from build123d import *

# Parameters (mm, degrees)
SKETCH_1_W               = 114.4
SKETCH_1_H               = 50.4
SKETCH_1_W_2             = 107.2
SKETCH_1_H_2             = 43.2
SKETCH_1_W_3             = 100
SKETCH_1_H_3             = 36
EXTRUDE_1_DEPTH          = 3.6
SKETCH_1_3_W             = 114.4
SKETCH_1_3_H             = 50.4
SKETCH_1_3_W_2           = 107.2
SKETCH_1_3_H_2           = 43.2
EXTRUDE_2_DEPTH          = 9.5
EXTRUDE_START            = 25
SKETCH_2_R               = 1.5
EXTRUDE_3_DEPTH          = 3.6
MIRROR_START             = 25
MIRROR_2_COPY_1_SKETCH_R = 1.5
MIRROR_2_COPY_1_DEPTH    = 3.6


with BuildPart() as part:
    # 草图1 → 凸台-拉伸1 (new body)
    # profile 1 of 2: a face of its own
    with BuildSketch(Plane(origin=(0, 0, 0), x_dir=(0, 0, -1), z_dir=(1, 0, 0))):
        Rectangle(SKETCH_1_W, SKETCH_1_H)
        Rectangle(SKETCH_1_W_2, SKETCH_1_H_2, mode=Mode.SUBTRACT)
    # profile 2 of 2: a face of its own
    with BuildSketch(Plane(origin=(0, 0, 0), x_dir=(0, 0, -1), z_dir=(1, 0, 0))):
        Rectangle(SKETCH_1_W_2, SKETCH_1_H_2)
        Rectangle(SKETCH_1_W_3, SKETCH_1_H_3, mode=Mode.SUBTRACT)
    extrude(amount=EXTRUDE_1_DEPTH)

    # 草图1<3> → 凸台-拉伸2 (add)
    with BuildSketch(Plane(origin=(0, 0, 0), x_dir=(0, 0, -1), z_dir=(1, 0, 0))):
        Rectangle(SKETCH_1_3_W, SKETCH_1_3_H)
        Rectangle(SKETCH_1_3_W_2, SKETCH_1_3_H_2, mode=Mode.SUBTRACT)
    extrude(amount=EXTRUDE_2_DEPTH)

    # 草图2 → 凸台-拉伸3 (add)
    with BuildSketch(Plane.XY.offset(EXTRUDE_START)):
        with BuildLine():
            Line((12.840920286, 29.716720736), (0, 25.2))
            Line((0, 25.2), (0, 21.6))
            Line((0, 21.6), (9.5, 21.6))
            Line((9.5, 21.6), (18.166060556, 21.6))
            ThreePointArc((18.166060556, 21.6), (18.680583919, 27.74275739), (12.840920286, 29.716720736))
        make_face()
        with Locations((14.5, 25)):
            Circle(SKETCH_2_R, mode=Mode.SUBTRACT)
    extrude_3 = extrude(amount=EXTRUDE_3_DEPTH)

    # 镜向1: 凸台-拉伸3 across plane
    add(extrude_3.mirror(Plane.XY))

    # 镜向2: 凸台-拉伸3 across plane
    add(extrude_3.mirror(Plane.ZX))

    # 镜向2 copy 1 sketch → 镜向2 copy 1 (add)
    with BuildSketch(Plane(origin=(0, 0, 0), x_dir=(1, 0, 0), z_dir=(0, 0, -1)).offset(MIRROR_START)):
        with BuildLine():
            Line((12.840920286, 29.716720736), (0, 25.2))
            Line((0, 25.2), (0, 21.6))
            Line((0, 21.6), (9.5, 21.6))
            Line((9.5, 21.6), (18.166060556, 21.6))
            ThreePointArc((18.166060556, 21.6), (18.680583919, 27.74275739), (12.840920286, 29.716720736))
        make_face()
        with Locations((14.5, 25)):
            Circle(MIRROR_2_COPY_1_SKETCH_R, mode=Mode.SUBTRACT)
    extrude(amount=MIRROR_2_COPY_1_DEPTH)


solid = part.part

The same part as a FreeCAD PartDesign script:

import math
import FreeCAD as App
import Part
import Sketcher

V = App.Vector

doc = App.newDocument("Part")
body = doc.addObject("PartDesign::Body", "Body")

sketch1 = body.newObject("Sketcher::SketchObject", "Sketch")
sketch1.AttachmentSupport = (doc.getObject("YZ_Plane"), [""])
sketch1.MapMode = "FlatFace"
sketch1.addGeometry(Part.LineSegment(V(25, 57, 0), V(-25, 57, 0)), False)
sketch1.addGeometry(Part.LineSegment(V(-25, 57, 0), V(-25, -57, 0)), False)
sketch1.addGeometry(Part.LineSegment(V(-25, -57, 0), V(25, -57, 0)), False)
sketch1.addGeometry(Part.LineSegment(V(25, -57, 0), V(25, 57, 0)), False)
sketch1.addGeometry(Part.LineSegment(V(-18, -50, 0), V(-18, 50, 0)), False)
sketch1.addGeometry(Part.LineSegment(V(-18, 50, 0), V(18, 50, 0)), False)
sketch1.addGeometry(Part.LineSegment(V(18, 50, 0), V(18, -50, 0)), False)
sketch1.addGeometry(Part.LineSegment(V(18, -50, 0), V(-18, -50, 0)), False)
sketch1.addConstraint(Sketcher.Constraint("Coincident", 0, 2, 1, 1))
sketch1.addConstraint(Sketcher.Constraint("Coincident", 1, 2, 2, 1))
sketch1.addConstraint(Sketcher.Constraint("Coincident", 2, 2, 3, 1))
sketch1.addConstraint(Sketcher.Constraint("Coincident", 3, 2, 0, 1))
sketch1.addConstraint(Sketcher.Constraint("Coincident", 4, 2, 5, 1))
sketch1.addConstraint(Sketcher.Constraint("Coincident", 5, 2, 6, 1))
sketch1.addConstraint(Sketcher.Constraint("Coincident", 6, 2, 7, 1))
sketch1.addConstraint(Sketcher.Constraint("Coincident", 7, 2, 4, 1))
sketch1.addConstraint(Sketcher.Constraint("Horizontal", 0))
sketch1.addConstraint(Sketcher.Constraint("Vertical", 1))
sketch1.addConstraint(Sketcher.Constraint("Horizontal", 2))
sketch1.addConstraint(Sketcher.Constraint("Vertical", 3))
sketch1.addConstraint(Sketcher.Constraint("Vertical", 4))
sketch1.addConstraint(Sketcher.Constraint("Horizontal", 5))
sketch1.addConstraint(Sketcher.Constraint("Vertical", 6))
sketch1.addConstraint(Sketcher.Constraint("Horizontal", 7))
sketch1.addConstraint(Sketcher.Constraint("Symmetric", 0, 2, 2, 2, -1, 1))
sketch1.addConstraint(Sketcher.Constraint("Symmetric", 4, 2, 6, 2, -1, 1))
sketch1.addConstraint(Sketcher.Constraint("DistanceX", 5, 1, 5, 2, 36.0))
sketch1.addConstraint(Sketcher.Constraint("DistanceY", 4, 1, 4, 2, 100.0))
sketch1.addConstraint(Sketcher.Constraint("DistanceX", 0, 2, 0, 1, 50.4))
sketch1.addConstraint(Sketcher.Constraint("DistanceY", 1, 2, 1, 1, 114.4))
pad1 = body.newObject("PartDesign::Pad", "Pad")
pad1.Profile = sketch1
pad1.Length = 3.6

sketch2 = body.newObject("Sketcher::SketchObject", "Sketch001")
sketch2.AttachmentSupport = (doc.getObject("YZ_Plane"), [""])
sketch2.MapMode = "FlatFace"
sketch2.addGeometry(Part.LineSegment(V(25, 57, 0), V(-25, 57, 0)), False)
sketch2.addGeometry(Part.LineSegment(V(-25, 57, 0), V(-25, -57, 0)), False)
sketch2.addGeometry(Part.LineSegment(V(-25, -57, 0), V(25, -57, 0)), False)
sketch2.addGeometry(Part.LineSegment(V(25, -57, 0), V(25, 57, 0)), False)
sketch2.addGeometry(Part.LineSegment(V(-22, -54, 0), V(-22, 54, 0)), False)
sketch2.addGeometry(Part.LineSegment(V(-22, 54, 0), V(22, 54, 0)), False)
sketch2.addGeometry(Part.LineSegment(V(22, 54, 0), V(22, -54, 0)), False)
sketch2.addGeometry(Part.LineSegment(V(22, -54, 0), V(-22, -54, 0)), False)
sketch2.addConstraint(Sketcher.Constraint("Coincident", 0, 2, 1, 1))
sketch2.addConstraint(Sketcher.Constraint("Coincident", 1, 2, 2, 1))
sketch2.addConstraint(Sketcher.Constraint("Coincident", 2, 2, 3, 1))
sketch2.addConstraint(Sketcher.Constraint("Coincident", 3, 2, 0, 1))
sketch2.addConstraint(Sketcher.Constraint("Coincident", 4, 2, 5, 1))
sketch2.addConstraint(Sketcher.Constraint("Coincident", 5, 2, 6, 1))
sketch2.addConstraint(Sketcher.Constraint("Coincident", 6, 2, 7, 1))
sketch2.addConstraint(Sketcher.Constraint("Coincident", 7, 2, 4, 1))
sketch2.addConstraint(Sketcher.Constraint("Horizontal", 0))
sketch2.addConstraint(Sketcher.Constraint("Vertical", 1))
sketch2.addConstraint(Sketcher.Constraint("Horizontal", 2))
sketch2.addConstraint(Sketcher.Constraint("Vertical", 3))
sketch2.addConstraint(Sketcher.Constraint("Vertical", 4))
sketch2.addConstraint(Sketcher.Constraint("Horizontal", 5))
sketch2.addConstraint(Sketcher.Constraint("Vertical", 6))
sketch2.addConstraint(Sketcher.Constraint("Horizontal", 7))
sketch2.addConstraint(Sketcher.Constraint("Symmetric", 0, 2, 2, 2, -1, 1))
sketch2.addConstraint(Sketcher.Constraint("Symmetric", 4, 2, 6, 2, -1, 1))
sketch2.addConstraint(Sketcher.Constraint("DistanceX", 0, 2, 0, 1, 50.4))
sketch2.addConstraint(Sketcher.Constraint("DistanceX", 5, 1, 5, 2, 43.2))
sketch2.addConstraint(Sketcher.Constraint("DistanceY", 1, 2, 1, 1, 114.4))
sketch2.addConstraint(Sketcher.Constraint("DistanceY", 4, 1, 4, 2, 107.2))
pad2 = body.newObject("PartDesign::Pad", "Pad001")
pad2.Profile = sketch2
pad2.Length = 9.5

sketch3 = body.newObject("Sketcher::SketchObject", "Sketch002")
sketch3.AttachmentSupport = (doc.getObject("XY_Plane"), [""])
sketch3.MapMode = "FlatFace"
sketch3.AttachmentOffset = App.Placement(V(0, 0, 25), App.Rotation())
sketch3.addGeometry(Part.LineSegment(V(12.8, 29.7, 0), V(0, 25.2, 0)), False)
sketch3.addGeometry(Part.LineSegment(V(0, 25.2, 0), V(0, 21.6, 0)), False)
sketch3.addGeometry(Part.LineSegment(V(0, 21.6, 0), V(18.2, 21.6, 0)), False)
sketch3.addGeometry(Part.ArcOfCircle(Part.Circle(V(14.5, 25, 0), V(0, 0, 1), 5), math.radians(-43), math.radians(109)), False)
sketch3.addGeometry(Part.Circle(V(14.5, 25, 0), V(0, 0, 1), 1.5), False)
sketch3.addConstraint(Sketcher.Constraint("Coincident", 0, 2, 1, 1))
sketch3.addConstraint(Sketcher.Constraint("Coincident", 1, 2, 2, 1))
sketch3.addConstraint(Sketcher.Constraint("Coincident", 2, 2, 3, 1))
sketch3.addConstraint(Sketcher.Constraint("Tangent", 3, 2, 0, 1))
sketch3.addConstraint(Sketcher.Constraint("Vertical", 1))
sketch3.addConstraint(Sketcher.Constraint("Horizontal", 2))
sketch3.addConstraint(Sketcher.Constraint("Coincident", 4, 3, 3, 3))
sketch3.addConstraint(Sketcher.Constraint("PointOnObject", 0, 2, -2))
sketch3.addConstraint(Sketcher.Constraint("Diameter", 4, 3.0))
sketch3.addConstraint(Sketcher.Constraint("Radius", 3, 5.0))
sketch3.addConstraint(Sketcher.Constraint("DistanceY", 1, 2, 1, 1, 3.6))
sketch3.addConstraint(Sketcher.Constraint("DistanceY", -1, 1, 3, 3, 25.0))
sketch3.addConstraint(Sketcher.Constraint("DistanceX", -1, 1, 3, 3, 14.5))
sketch3.addConstraint(Sketcher.Constraint("DistanceY", -1, 1, 0, 2, 25.2))
pad3 = body.newObject("PartDesign::Pad", "Pad002")
pad3.Profile = sketch3
pad3.Length = 3.6
doc.recompute()

mirrored = body.newObject("PartDesign::Mirrored", "Mirrored")
mirrored.Originals = [pad3]
mirrored.MirrorPlane = (doc.getObject("XY_Plane"), [""])
body.Tip = mirrored
doc.recompute()

mirrored2 = body.newObject("PartDesign::Mirrored", "Mirrored001")
mirrored2.Originals = [pad3]
mirrored2.MirrorPlane = (doc.getObject("XZ_Plane"), [""])
body.Tip = mirrored2

sketch4 = body.newObject("Sketcher::SketchObject", "Sketch003")
sketch4.AttachmentSupport = (doc.getObject("XY_Plane"), [""])
sketch4.MapMode = "FlatFace"
sketch4.AttachmentOffset = App.Placement(V(0, 0, -25), App.Rotation())
sketch4.addGeometry(Part.LineSegment(V(12.8, -29.7, 0), V(0, -25.2, 0)), False)
sketch4.addGeometry(Part.LineSegment(V(0, -25.2, 0), V(0, -21.6, 0)), False)
sketch4.addGeometry(Part.LineSegment(V(0, -21.6, 0), V(18.2, -21.6, 0)), False)
sketch4.addGeometry(Part.ArcOfCircle(Part.Circle(V(14.5, -25, 0), V(0, 0, 1), 5), math.radians(-109), math.radians(43)), False)
sketch4.addGeometry(Part.Circle(V(14.5, -25, 0), V(0, 0, 1), 1.5), False)
sketch4.addConstraint(Sketcher.Constraint("Coincident", 0, 2, 1, 1))
sketch4.addConstraint(Sketcher.Constraint("Coincident", 1, 2, 2, 1))
sketch4.addConstraint(Sketcher.Constraint("Coincident", 2, 2, 3, 2))
sketch4.addConstraint(Sketcher.Constraint("Tangent", 3, 1, 0, 1))
sketch4.addConstraint(Sketcher.Constraint("Vertical", 1))
sketch4.addConstraint(Sketcher.Constraint("Horizontal", 2))
sketch4.addConstraint(Sketcher.Constraint("Coincident", 4, 3, 3, 3))
sketch4.addConstraint(Sketcher.Constraint("PointOnObject", 0, 2, -2))
sketch4.addConstraint(Sketcher.Constraint("Diameter", 4, 3.0))
sketch4.addConstraint(Sketcher.Constraint("Radius", 3, 5.0))
sketch4.addConstraint(Sketcher.Constraint("DistanceY", 1, 1, 1, 2, 3.6))
sketch4.addConstraint(Sketcher.Constraint("DistanceY", 3, 3, -1, 1, 25.0))
sketch4.addConstraint(Sketcher.Constraint("DistanceX", -1, 1, 3, 3, 14.5))
sketch4.addConstraint(Sketcher.Constraint("DistanceY", 0, 2, -1, 1, 25.2))
pad4 = body.newObject("PartDesign::Pad", "Pad003")
pad4.Profile = sketch4
pad4.Length = 3.6
pad4.Reversed = True

doc.recompute()
